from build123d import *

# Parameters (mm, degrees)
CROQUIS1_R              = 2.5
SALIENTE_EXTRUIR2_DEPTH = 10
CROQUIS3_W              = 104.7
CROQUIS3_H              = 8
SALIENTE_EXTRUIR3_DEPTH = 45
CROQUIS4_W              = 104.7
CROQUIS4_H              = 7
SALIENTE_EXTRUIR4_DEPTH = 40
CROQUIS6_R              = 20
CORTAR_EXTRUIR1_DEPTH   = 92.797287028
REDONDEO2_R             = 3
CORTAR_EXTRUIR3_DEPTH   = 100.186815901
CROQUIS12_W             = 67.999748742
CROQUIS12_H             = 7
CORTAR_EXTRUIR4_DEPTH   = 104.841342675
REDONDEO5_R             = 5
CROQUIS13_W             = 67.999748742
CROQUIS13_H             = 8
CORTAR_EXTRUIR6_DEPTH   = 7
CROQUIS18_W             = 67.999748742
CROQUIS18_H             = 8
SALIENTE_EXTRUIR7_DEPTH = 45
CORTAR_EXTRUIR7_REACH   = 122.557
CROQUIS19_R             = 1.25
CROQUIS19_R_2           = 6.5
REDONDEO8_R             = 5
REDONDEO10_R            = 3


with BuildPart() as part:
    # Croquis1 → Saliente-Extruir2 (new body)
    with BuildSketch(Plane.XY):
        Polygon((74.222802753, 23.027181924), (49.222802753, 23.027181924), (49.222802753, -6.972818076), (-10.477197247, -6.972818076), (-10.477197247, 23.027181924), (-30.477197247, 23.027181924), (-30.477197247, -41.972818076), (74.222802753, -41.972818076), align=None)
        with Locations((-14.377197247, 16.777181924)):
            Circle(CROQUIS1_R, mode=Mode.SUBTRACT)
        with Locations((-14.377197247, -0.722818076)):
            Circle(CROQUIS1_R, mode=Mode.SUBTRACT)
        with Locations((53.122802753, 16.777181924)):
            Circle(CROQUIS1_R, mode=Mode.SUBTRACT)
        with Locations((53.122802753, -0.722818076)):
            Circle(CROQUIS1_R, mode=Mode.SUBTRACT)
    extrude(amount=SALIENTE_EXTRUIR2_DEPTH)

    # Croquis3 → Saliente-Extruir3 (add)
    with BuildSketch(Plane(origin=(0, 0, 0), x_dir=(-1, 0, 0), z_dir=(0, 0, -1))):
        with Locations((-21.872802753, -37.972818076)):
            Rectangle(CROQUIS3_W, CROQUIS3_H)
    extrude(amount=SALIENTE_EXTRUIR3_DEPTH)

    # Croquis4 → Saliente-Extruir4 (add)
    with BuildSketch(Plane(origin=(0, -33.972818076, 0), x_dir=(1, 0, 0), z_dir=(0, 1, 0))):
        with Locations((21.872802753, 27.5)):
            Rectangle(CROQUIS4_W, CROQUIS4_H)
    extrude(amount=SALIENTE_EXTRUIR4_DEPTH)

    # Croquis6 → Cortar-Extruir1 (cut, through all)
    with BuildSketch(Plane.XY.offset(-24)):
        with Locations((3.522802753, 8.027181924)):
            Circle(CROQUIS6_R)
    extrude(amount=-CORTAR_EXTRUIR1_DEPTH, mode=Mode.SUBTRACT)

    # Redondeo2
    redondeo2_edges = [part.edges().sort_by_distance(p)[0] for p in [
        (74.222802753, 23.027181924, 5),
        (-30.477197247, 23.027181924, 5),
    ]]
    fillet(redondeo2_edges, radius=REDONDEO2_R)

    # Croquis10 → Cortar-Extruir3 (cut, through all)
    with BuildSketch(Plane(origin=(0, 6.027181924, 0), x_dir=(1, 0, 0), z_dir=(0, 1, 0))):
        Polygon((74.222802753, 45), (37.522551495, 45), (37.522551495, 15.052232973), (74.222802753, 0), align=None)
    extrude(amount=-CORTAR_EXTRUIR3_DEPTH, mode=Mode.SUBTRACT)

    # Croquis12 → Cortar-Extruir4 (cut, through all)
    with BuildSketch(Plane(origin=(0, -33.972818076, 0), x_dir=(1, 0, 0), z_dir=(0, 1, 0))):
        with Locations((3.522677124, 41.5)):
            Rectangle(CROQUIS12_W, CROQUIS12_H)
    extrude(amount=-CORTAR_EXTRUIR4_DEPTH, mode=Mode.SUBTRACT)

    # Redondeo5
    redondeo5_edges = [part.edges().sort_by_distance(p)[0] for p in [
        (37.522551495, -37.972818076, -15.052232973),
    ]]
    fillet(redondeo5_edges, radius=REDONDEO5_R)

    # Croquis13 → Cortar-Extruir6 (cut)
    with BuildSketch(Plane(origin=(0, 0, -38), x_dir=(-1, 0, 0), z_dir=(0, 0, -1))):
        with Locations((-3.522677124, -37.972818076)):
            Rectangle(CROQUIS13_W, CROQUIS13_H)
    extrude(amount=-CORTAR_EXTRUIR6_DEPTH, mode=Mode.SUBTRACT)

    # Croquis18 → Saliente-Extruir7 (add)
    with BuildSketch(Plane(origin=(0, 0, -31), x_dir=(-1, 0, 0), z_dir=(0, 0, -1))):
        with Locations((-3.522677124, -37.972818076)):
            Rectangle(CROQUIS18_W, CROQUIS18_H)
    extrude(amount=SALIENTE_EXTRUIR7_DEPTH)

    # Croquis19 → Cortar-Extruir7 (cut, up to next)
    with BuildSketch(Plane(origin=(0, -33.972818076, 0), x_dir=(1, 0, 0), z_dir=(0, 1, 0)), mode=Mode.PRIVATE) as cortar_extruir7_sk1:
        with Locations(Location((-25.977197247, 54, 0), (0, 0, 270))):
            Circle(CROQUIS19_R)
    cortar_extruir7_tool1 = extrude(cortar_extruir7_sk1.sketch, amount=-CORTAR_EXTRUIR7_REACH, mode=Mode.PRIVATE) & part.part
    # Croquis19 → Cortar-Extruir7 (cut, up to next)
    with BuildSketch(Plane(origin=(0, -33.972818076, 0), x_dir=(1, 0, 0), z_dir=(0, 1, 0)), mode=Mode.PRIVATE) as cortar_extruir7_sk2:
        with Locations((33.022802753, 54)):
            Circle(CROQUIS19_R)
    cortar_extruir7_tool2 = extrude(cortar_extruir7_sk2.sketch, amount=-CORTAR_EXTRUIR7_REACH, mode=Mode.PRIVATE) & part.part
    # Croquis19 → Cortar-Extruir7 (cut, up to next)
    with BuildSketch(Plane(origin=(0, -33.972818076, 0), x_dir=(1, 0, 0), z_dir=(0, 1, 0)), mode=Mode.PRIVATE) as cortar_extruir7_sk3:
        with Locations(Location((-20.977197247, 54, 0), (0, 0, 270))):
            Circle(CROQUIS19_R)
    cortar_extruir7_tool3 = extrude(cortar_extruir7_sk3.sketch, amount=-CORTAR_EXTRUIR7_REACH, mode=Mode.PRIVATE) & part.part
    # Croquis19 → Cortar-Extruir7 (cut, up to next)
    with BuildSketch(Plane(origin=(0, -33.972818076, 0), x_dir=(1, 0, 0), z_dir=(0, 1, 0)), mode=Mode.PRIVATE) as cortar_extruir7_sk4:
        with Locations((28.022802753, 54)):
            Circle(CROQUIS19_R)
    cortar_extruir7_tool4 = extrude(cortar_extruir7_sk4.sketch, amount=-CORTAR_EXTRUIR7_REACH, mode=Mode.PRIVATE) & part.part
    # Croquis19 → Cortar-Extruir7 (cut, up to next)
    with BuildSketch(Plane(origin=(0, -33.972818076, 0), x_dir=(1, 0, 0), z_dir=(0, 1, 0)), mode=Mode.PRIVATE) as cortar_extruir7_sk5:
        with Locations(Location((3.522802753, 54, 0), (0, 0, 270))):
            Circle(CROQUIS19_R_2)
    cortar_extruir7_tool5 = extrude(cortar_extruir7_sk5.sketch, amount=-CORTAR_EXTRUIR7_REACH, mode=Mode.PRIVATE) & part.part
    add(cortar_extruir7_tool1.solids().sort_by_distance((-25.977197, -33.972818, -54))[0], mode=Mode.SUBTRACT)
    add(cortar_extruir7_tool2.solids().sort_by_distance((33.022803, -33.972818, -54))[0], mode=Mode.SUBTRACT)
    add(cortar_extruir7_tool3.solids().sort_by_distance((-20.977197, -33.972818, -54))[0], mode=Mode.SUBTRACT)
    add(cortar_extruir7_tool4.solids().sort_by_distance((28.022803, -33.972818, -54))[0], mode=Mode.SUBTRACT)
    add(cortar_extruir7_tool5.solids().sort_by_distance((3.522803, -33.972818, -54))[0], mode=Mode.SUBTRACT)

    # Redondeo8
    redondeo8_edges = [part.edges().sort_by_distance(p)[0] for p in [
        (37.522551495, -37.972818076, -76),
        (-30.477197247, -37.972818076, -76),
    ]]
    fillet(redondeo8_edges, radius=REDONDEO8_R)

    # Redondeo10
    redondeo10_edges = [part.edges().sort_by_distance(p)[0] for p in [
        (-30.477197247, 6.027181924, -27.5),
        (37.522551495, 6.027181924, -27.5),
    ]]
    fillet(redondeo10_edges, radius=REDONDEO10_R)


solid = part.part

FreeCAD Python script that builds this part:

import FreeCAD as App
import Part
import Sketcher
from FreeCAD import Vector
Q = App.Units.Quantity


def edges_at(feature, points):
    """Names of the edges that pass closest to the given points."""
    edges = feature.Shape.Edges
    near = lambda p: min(range(len(edges)), key=lambda i: edges[i].distToShape(Part.Vertex(*p))[0])
    return sorted({f"Edge{near(p) + 1}" for p in points})

doc = App.newDocument("Part")
body = doc.addObject("PartDesign::Body", "Body")

# Sketch on XY plane
sketch1 = body.newObject("Sketcher::SketchObject", "Sketch")
sketch1.AttachmentSupport = (doc.getObject("XY_Plane"), [""])
sketch1.MapMode = "FlatFace"
sketch1.addGeometry(Part.LineSegment(Vector(74.2, 23, 0), Vector(49.2, 23, 0)), False)
sketch1.addGeometry(Part.LineSegment(Vector(49.2, 23, 0), Vector(49.2, -7, 0)), False)
sketch1.addGeometry(Part.LineSegment(Vector(49.2, -7, 0), Vector(-10.5, -7, 0)), False)
sketch1.addGeometry(Part.LineSegment(Vector(-10.5, -7, 0), Vector(-10.5, 23, 0)), False)
sketch1.addGeometry(Part.LineSegment(Vector(-10.5, 23, 0), Vector(-30.5, 23, 0)), False)
sketch1.addGeometry(Part.LineSegment(Vector(-30.5, 23, 0), Vector(-30.5, -42, 0)), False)
sketch1.addGeometry(Part.LineSegment(Vector(-30.5, -42, 0), Vector(74.2, -42, 0)), False)
sketch1.addGeometry(Part.LineSegment(Vector(74.2, -42, 0), Vector(74.2, 23, 0)), False)
sketch1.addGeometry(Part.Circle(Vector(-14.4, -0.7, 0), Vector(0, 0, 1), 2.5), False)
sketch1.addGeometry(Part.Circle(Vector(53.1, -0.7, 0), Vector(0, 0, 1), 2.5), False)
sketch1.addGeometry(Part.Circle(Vector(-14.4, 16.8, 0), Vector(0, 0, 1), 2.5), False)
sketch1.addGeometry(Part.Circle(Vector(53.1, 16.8, 0), Vector(0, 0, 1), 2.5), False)
sketch1.addConstraint(Sketcher.Constraint("Coincident", 0, 2, 1, 1))
sketch1.addConstraint(Sketcher.Constraint("Coincident", 1, 2, 2, 1))
sketch1.addConstraint(Sketcher.Constraint("Coincident", 2, 2, 3, 1))
sketch1.addConstraint(Sketcher.Constraint("Coincident", 3, 2, 4, 1))
sketch1.addConstraint(Sketcher.Constraint("Coincident", 4, 2, 5, 1))
sketch1.addConstraint(Sketcher.Constraint("Coincident", 5, 2, 6, 1))
sketch1.addConstraint(Sketcher.Constraint("Coincident", 6, 2, 7, 1))
sketch1.addConstraint(Sketcher.Constraint("Coincident", 7, 2, 0, 1))
sketch1.addConstraint(Sketcher.Constraint("Horizontal", 0))
sketch1.addConstraint(Sketcher.Constraint("Vertical", 1))
sketch1.addConstraint(Sketcher.Constraint("Horizontal", 2))
sketch1.addConstraint(Sketcher.Constraint("Vertical", 3))
sketch1.addConstraint(Sketcher.Constraint("Horizontal", 4))
sketch1.addConstraint(Sketcher.Constraint("Vertical", 5))
sketch1.addConstraint(Sketcher.Constraint("Horizontal", 6))
sketch1.addConstraint(Sketcher.Constraint("Vertical", 7))
sketch1.addConstraint(Sketcher.Constraint("Equal", 8, 9))
sketch1.addConstraint(Sketcher.Constraint("Equal", 9, 10))
sketch1.addConstraint(Sketcher.Constraint("Equal", 10, 11))
sketch1.addConstraint(Sketcher.Constraint("Horizontal", 8, 3, 9, 3))
sketch1.addConstraint(Sketcher.Constraint("Horizontal", 10, 3, 11, 3))
sketch1.addConstraint(Sketcher.Constraint("Horizontal", 0, 2, 3, 2))
sketch1.addConstraint(Sketcher.Constraint("Vertical", 8, 3, 10, 3))
sketch1.addConstraint(Sketcher.Constraint("Vertical", 9, 3, 11, 3))
sketch1.addConstraint(Sketcher.Constraint("Diameter", 8, Q("5 mm")))
sketch1.addConstraint(Sketcher.Constraint("DistanceX", 0, 2, 0, 1, Q("25 mm")))
sketch1.addConstraint(Sketcher.Constraint("DistanceX", 4, 2, 4, 1, Q("20 mm")))
sketch1.addConstraint(Sketcher.Constraint("DistanceY", 1, 2, 1, 1, Q("30 mm")))
sketch1.addConstraint(Sketcher.Constraint("DistanceY", 5, 2, 5, 1, Q("65 mm")))
sketch1.addConstraint(Sketcher.Constraint("DistanceX", 2, 2, 2, 1, Q("59.7 mm")))
sketch1.addConstraint(Sketcher.Constraint("DistanceX", 8, 3, 9, 3, Q("67.5 mm")))
sketch1.addConstraint(Sketcher.Constraint("DistanceY", 8, 3, 10, 3, Q("17.5 mm")))
sketch1.addConstraint(Sketcher.Constraint("DistanceX", 0, 2, 11, 3, Q("3.9 mm")))
sketch1.addConstraint(Sketcher.Constraint("DistanceY", 11, 3, 0, 2, Q("6.25 mm")))
sketch1.addConstraint(Sketcher.Constraint("DistanceY", 8, 3, -1, 1, Q("0.722818 mm")))
sketch1.addConstraint(Sketcher.Constraint("DistanceX", 8, 3, -1, 1, Q("14.377197 mm")))
pad1 = body.newObject("PartDesign::Pad", "Pad")
pad1.Profile = sketch1
pad1.Length = 10

# Sketch on XY plane
sketch2 = body.newObject("Sketcher::SketchObject", "Sketch001")
sketch2.AttachmentSupport = (doc.getObject("XY_Plane"), [""])
sketch2.MapMode = "FlatFace"
sketch2.addGeometry(Part.LineSegment(Vector(74, -34, 0), Vector(74, -42, 0)), False)
sketch2.addGeometry(Part.LineSegment(Vector(74, -42, 0), Vector(-30, -42, 0)), False)
sketch2.addGeometry(Part.LineSegment(Vector(-30, -42, 0), Vector(-30, -34, 0)), False)
sketch2.addGeometry(Part.LineSegment(Vector(-30, -34, 0), Vector(74, -34, 0)), False)
sketch2.addConstraint(Sketcher.Constraint("Coincident", 0, 2, 1, 1))
sketch2.addConstraint(Sketcher.Constraint("Coincident", 1, 2, 2, 1))
sketch2.addConstraint(Sketcher.Constraint("Coincident", 2, 2, 3, 1))
sketch2.addConstraint(Sketcher.Constraint("Coincident", 3, 2, 0, 1))
sketch2.addConstraint(Sketcher.Constraint("Vertical", 0))
sketch2.addConstraint(Sketcher.Constraint("Horizontal", 1))
sketch2.addConstraint(Sketcher.Constraint("Vertical", 2))
sketch2.addConstraint(Sketcher.Constraint("Horizontal", 3))
sketch2.addConstraint(Sketcher.Constraint("DistanceY", 0, 2, 0, 1, Q("8 mm")))
sketch2.addConstraint(Sketcher.Constraint("DistanceX", 1, 2, 1, 1, Q("104.7 mm")))
sketch2.addConstraint(Sketcher.Constraint("DistanceY", 0, 2, -1, 1, Q("41.972818 mm")))
sketch2.addConstraint(Sketcher.Constraint("DistanceX", -1, 1, 0, 2, Q("74.222803 mm")))
pad2 = body.newObject("PartDesign::Pad", "Pad001")
pad2.Profile = sketch2
pad2.Length = 45
pad2.Reversed = True

# Sketch on XZ plane
sketch3 = body.newObject("Sketcher::SketchObject", "Sketch002")
sketch3.AttachmentSupport = (doc.getObject("XZ_Plane"), [""])
sketch3.MapMode = "FlatFace"
sketch3.AttachmentOffset = App.Placement(Vector(0, 0, 33.972818), App.Rotation())
sketch3.addGeometry(Part.LineSegment(Vector(-30, -31, 0), Vector(-30, -24, 0)), False)
sketch3.addGeometry(Part.LineSegment(Vector(-30, -24, 0), Vector(74, -24, 0)), False)
sketch3.addGeometry(Part.LineSegment(Vector(74, -24, 0), Vector(74, -31, 0)), False)
sketch3.addGeometry(Part.LineSegment(Vector(74, -31, 0), Vector(-30, -31, 0)), False)
sketch3.addConstraint(Sketcher.Constraint("Coincident", 0, 2, 1, 1))
sketch3.addConstraint(Sketcher.Constraint("Coincident", 1, 2, 2, 1))
sketch3.addConstraint(Sketcher.Constraint("Coincident", 2, 2, 3, 1))
sketch3.addConstraint(Sketcher.Constraint("Coincident", 3, 2, 0, 1))
sketch3.addConstraint(Sketcher.Constraint("Vertical", 0))
sketch3.addConstraint(Sketcher.Constraint("Horizontal", 1))
sketch3.addConstraint(Sketcher.Constraint("Vertical", 2))
sketch3.addConstraint(Sketcher.Constraint("Horizontal", 3))
sketch3.addConstraint(Sketcher.Constraint("DistanceY", 0, 1, 0, 2, Q("7 mm")))
sketch3.addConstraint(Sketcher.Constraint("DistanceX", 1, 1, 1, 2, Q("104.7 mm")))
sketch3.addConstraint(Sketcher.Constraint("DistanceY", 0, 2, -1, 1, Q("24 mm")))
sketch3.addConstraint(Sketcher.Constraint("DistanceX", 0, 2, -1, 1, Q("30.477197 mm")))
pad3 = body.newObject("PartDesign::Pad", "Pad002")
pad3.Profile = sketch3
pad3.Length = 40
pad3.Reversed = True

# Sketch on XY plane
sketch4 = body.newObject("Sketcher::SketchObject", "Sketch003")
sketch4.AttachmentSupport = (doc.getObject("XY_Plane"), [""])
sketch4.MapMode = "FlatFace"
sketch4.AttachmentOffset = App.Placement(Vector(0, 0, -24), App.Rotation())
sketch4.addGeometry(Part.Circle(Vector(4, 8, 0), Vector(0, 0, 1), 20), False)
sketch4.addConstraint(Sketcher.Constraint("Diameter", 0, Q("40 mm")))
sketch4.addConstraint(Sketcher.Constraint("DistanceY", -1, 1, 0, 3, Q("8.027182 mm")))
sketch4.addConstraint(Sketcher.Constraint("DistanceX", -1, 1, 0, 3, Q("3.522803 mm")))
pocket1 = body.newObject("PartDesign::Pocket", "Pocket")
pocket1.Profile = sketch4
pocket1.Type = "ThroughAll"
doc.recompute()

fillet = body.newObject("PartDesign::Fillet", "Fillet")
fillet.Base = (pocket1, edges_at(pocket1, [(74.223, 23.027, 5), (-30.477, 23.027, 5)]))
fillet.Radius = 3

# Sketch on XZ plane
sketch5 = body.newObject("Sketcher::SketchObject", "Sketch004")
sketch5.AttachmentSupport = (doc.getObject("XZ_Plane"), [""])
sketch5.MapMode = "FlatFace"
sketch5.AttachmentOffset = App.Placement(Vector(0, 0, -6.027182), App.Rotation())
sketch5.addGeometry(Part.LineSegment(Vector(74, -45, 0), Vector(38, -45, 0)), False)
sketch5.addGeometry(Part.LineSegment(Vector(38, -45, 0), Vector(38, -15, 0)), False)
sketch5.addGeometry(Part.LineSegment(Vector(38, -15, 0), Vector(74, 0, 0)), False)
sketch5.addGeometry(Part.LineSegment(Vector(74, 0, 0), Vector(74, -45, 0)), False)
sketch5.addConstraint(Sketcher.Constraint("Coincident", 0, 2, 1, 1))
sketch5.addConstraint(Sketcher.Constraint("Coincident", 1, 2, 2, 1))
sketch5.addConstraint(Sketcher.Constraint("Coincident", 2, 2, 3, 1))
sketch5.addConstraint(Sketcher.Constraint("Coincident", 3, 2, 0, 1))
sketch5.addConstraint(Sketcher.Constraint("Horizontal", 0))
sketch5.addConstraint(Sketcher.Constraint("Vertical", 1))
sketch5.addConstraint(Sketcher.Constraint("Vertical", 3))
sketch5.addConstraint(Sketcher.Constraint("PointOnObject", 2, 2, -1))
sketch5.addConstraint(Sketcher.Constraint("DistanceY", 3, 2, 3, 1, Q("45 mm")))
sketch5.addConstraint(Sketcher.Constraint("DistanceX", 0, 2, 0, 1, Q("36.700251 mm")))
sketch5.addConstraint(Sketcher.Constraint("Distance", 2, Q("39.667092 mm")))
sketch5.addConstraint(Sketcher.Constraint("DistanceX", -1, 1, 0, 2, Q("37.522551 mm")))
pocket2 = body.newObject("PartDesign::Pocket", "Pocket001")
pocket2.Profile = sketch5
pocket2.Type = "ThroughAll"
pocket2.Reversed = True

# Sketch on XZ plane
sketch6 = body.newObject("Sketcher::SketchObject", "Sketch005")
sketch6.AttachmentSupport = (doc.getObject("XZ_Plane"), [""])
sketch6.MapMode = "FlatFace"
sketch6.AttachmentOffset = App.Placement(Vector(0, 0, 33.972818), App.Rotation())
sketch6.addGeometry(Part.LineSegment(Vector(-30, -45, 0), Vector(-30, -38, 0)), False)
sketch6.addGeometry(Part.LineSegment(Vector(-30, -38, 0), Vector(38, -38, 0)), False)
sketch6.addGeometry(Part.LineSegment(Vector(38, -38, 0), Vector(38, -45, 0)), False)
sketch6.addGeometry(Part.LineSegment(Vector(38, -45, 0), Vector(-30, -45, 0)), False)
sketch6.addConstraint(Sketcher.Constraint("Coincident", 0, 2, 1, 1))
sketch6.addConstraint(Sketcher.Constraint("Coincident", 1, 2, 2, 1))
sketch6.addConstraint(Sketcher.Constraint("Coincident", 2, 2, 3, 1))
sketch6.addConstraint(Sketcher.Constraint("Coincident", 3, 2, 0, 1))
sketch6.addConstraint(Sketcher.Constraint("Vertical", 0))
sketch6.addConstraint(Sketcher.Constraint("Horizontal", 1))
sketch6.addConstraint(Sketcher.Constraint("Vertical", 2))
sketch6.addConstraint(Sketcher.Constraint("Horizontal", 3))
sketch6.addConstraint(Sketcher.Constraint("DistanceY", 0, 1, 0, 2, Q("7 mm")))
sketch6.addConstraint(Sketcher.Constraint("DistanceY", 0, 2, -1, 1, Q("38 mm")))
sketch6.addConstraint(Sketcher.Constraint("DistanceX", 1, 1, 1, 2, Q("67.999749 mm")))
sketch6.addConstraint(Sketcher.Constraint("DistanceX", -1, 1, 1, 2, Q("37.522551 mm")))
pocket3 = body.newObject("PartDesign::Pocket", "Pocket002")
pocket3.Profile = sketch6
pocket3.Type = "ThroughAll"
pocket3.Reversed = True
doc.recompute()

fillet2 = body.newObject("PartDesign::Fillet", "Fillet001")
fillet2.Base = (pocket3, edges_at(pocket3, [(37.523, -37.973, -15.052)]))
fillet2.Radius = 5

# Sketch on XY plane
sketch7 = body.newObject("Sketcher::SketchObject", "Sketch006")
sketch7.AttachmentSupport = (doc.getObject("XY_Plane"), [""])
sketch7.MapMode = "FlatFace"
sketch7.AttachmentOffset = App.Placement(Vector(0, 0, -38), App.Rotation())
sketch7.addGeometry(Part.LineSegment(Vector(38, -34, 0), Vector(38, -42, 0)), False)
sketch7.addGeometry(Part.LineSegment(Vector(38, -42, 0), Vector(-30, -42, 0)), False)
sketch7.addGeometry(Part.LineSegment(Vector(-30, -42, 0), Vector(-30, -34, 0)), False)
sketch7.addGeometry(Part.LineSegment(Vector(-30, -34, 0), Vector(38, -34, 0)), False)
sketch7.addConstraint(Sketcher.Constraint("Coincident", 0, 2, 1, 1))
sketch7.addConstraint(Sketcher.Constraint("Coincident", 1, 2, 2, 1))
sketch7.addConstraint(Sketcher.Constraint("Coincident", 2, 2, 3, 1))
sketch7.addConstraint(Sketcher.Constraint("Coincident", 3, 2, 0, 1))
sketch7.addConstraint(Sketcher.Constraint("Vertical", 0))
sketch7.addConstraint(Sketcher.Constraint("Horizontal", 1))
sketch7.addConstraint(Sketcher.Constraint("Vertical", 2))
sketch7.addConstraint(Sketcher.Constraint("Horizontal", 3))
sketch7.addConstraint(Sketcher.Constraint("DistanceY", 0, 2, 0, 1, Q("8 mm")))
sketch7.addConstraint(Sketcher.Constraint("DistanceX", 1, 2, 1, 1, Q("67.999749 mm")))
sketch7.addConstraint(Sketcher.Constraint("DistanceX", -1, 1, 0, 2, Q("37.522551 mm")))
sketch7.addConstraint(Sketcher.Constraint("DistanceY", 0, 2, -1, 1, Q("41.972818 mm")))
pocket4 = body.newObject("PartDesign::Pocket", "Pocket003")
pocket4.Profile = sketch7
pocket4.Length = 7
pocket4.Reversed = True

# Sketch on XY plane
sketch8 = body.newObject("Sketcher::SketchObject", "Sketch007")
sketch8.AttachmentSupport = (doc.getObject("XY_Plane"), [""])
sketch8.MapMode = "FlatFace"
sketch8.AttachmentOffset = App.Placement(Vector(0, 0, -31), App.Rotation())
sketch8.addGeometry(Part.LineSegment(Vector(38, -34, 0), Vector(38, -42, 0)), False)
sketch8.addGeometry(Part.LineSegment(Vector(38, -42, 0), Vector(-30, -42, 0)), False)
sketch8.addGeometry(Part.LineSegment(Vector(-30, -42, 0), Vector(-30, -34, 0)), False)
sketch8.addGeometry(Part.LineSegment(Vector(-30, -34, 0), Vector(38, -34, 0)), False)
sketch8.addConstraint(Sketcher.Constraint("Coincident", 0, 2, 1, 1))
sketch8.addConstraint(Sketcher.Constraint("Coincident", 1, 2, 2, 1))
sketch8.addConstraint(Sketcher.Constraint("Coincident", 2, 2, 3, 1))
sketch8.addConstraint(Sketcher.Constraint("Coincident", 3, 2, 0, 1))
sketch8.addConstraint(Sketcher.Constraint("Vertical", 0))
sketch8.addConstraint(Sketcher.Constraint("Horizontal", 1))
sketch8.addConstraint(Sketcher.Constraint("Vertical", 2))
sketch8.addConstraint(Sketcher.Constraint("Horizontal", 3))
sketch8.addConstraint(Sketcher.Constraint("DistanceY", 0, 2, 0, 1, Q("8 mm")))
sketch8.addConstraint(Sketcher.Constraint("DistanceX", 1, 2, 1, 1, Q("67.999749 mm")))
sketch8.addConstraint(Sketcher.Constraint("DistanceX", -1, 1, 0, 2, Q("37.522551 mm")))
sketch8.addConstraint(Sketcher.Constraint("DistanceY", 0, 2, -1, 1, Q("41.972818 mm")))
pad4 = body.newObject("PartDesign::Pad", "Pad003")
pad4.Profile = sketch8
pad4.Length = 45
pad4.Reversed = True

# Sketch on XZ plane
sketch9 = body.newObject("Sketcher::SketchObject", "Sketch008")
sketch9.AttachmentSupport = (doc.getObject("XZ_Plane"), [""])
sketch9.MapMode = "FlatFace"
sketch9.AttachmentOffset = App.Placement(Vector(0, 0, 33.972818), App.Rotation())
sketch9.addGeometry(Part.Circle(Vector(-26, -54, 0), Vector(0, 0, 1), 1.2), False)
sketch9.addConstraint(Sketcher.Constraint("Diameter", 0, Q("2.5 mm")))
sketch9.addConstraint(Sketcher.Constraint("DistanceY", 0, 3, -1, 1, Q("54 mm")))
sketch9.addConstraint(Sketcher.Constraint("DistanceX", 0, 3, -1, 1, Q("25.977197 mm")))
pocket5 = body.newObject("PartDesign::Pocket", "Pocket004")
pocket5.Profile = sketch9
pocket5.Type = "UpToFirst"
pocket5.Reversed = True

# Sketch on XZ plane
sketch10 = body.newObject("Sketcher::SketchObject", "Sketch009")
sketch10.AttachmentSupport = (doc.getObject("XZ_Plane"), [""])
sketch10.MapMode = "FlatFace"
sketch10.AttachmentOffset = App.Placement(Vector(0, 0, 33.972818), App.Rotation())
sketch10.addGeometry(Part.Circle(Vector(33, -54, 0), Vector(0, 0, 1), 1.2), False)
sketch10.addConstraint(Sketcher.Constraint("Diameter", 0, Q("2.5 mm")))
sketch10.addConstraint(Sketcher.Constraint("DistanceY", 0, 3, -1, 1, Q("54 mm")))
sketch10.addConstraint(Sketcher.Constraint("DistanceX", -1, 1, 0, 3, Q("33.022803 mm")))
pocket6 = body.newObject("PartDesign::Pocket", "Pocket005")
pocket6.Profile = sketch10
pocket6.Type = "UpToFirst"
pocket6.Reversed = True

# Sketch on XZ plane
sketch11 = body.newObject("Sketcher::SketchObject", "Sketch010")
sketch11.AttachmentSupport = (doc.getObject("XZ_Plane"), [""])
sketch11.MapMode = "FlatFace"
sketch11.AttachmentOffset = App.Placement(Vector(0, 0, 33.972818), App.Rotation())
sketch11.addGeometry(Part.Circle(Vector(-21, -54, 0), Vector(0, 0, 1), 1.2), False)
sketch11.addConstraint(Sketcher.Constraint("Diameter", 0, Q("2.5 mm")))
sketch11.addConstraint(Sketcher.Constraint("DistanceY", 0, 3, -1, 1, Q("54 mm")))
sketch11.addConstraint(Sketcher.Constraint("DistanceX", 0, 3, -1, 1, Q("20.977197 mm")))
pocket7 = body.newObject("PartDesign::Pocket", "Pocket006")
pocket7.Profile = sketch11
pocket7.Type = "UpToFirst"
pocket7.Reversed = True

# Sketch on XZ plane
sketch12 = body.newObject("Sketcher::SketchObject", "Sketch011")
sketch12.AttachmentSupport = (doc.getObject("XZ_Plane"), [""])
sketch12.MapMode = "FlatFace"
sketch12.AttachmentOffset = App.Placement(Vector(0, 0, 33.972818), App.Rotation())
sketch12.addGeometry(Part.Circle(Vector(28, -54, 0), Vector(0, 0, 1), 1.2), False)
sketch12.addConstraint(Sketcher.Constraint("Diameter", 0, Q("2.5 mm")))
sketch12.addConstraint(Sketcher.Constraint("DistanceY", 0, 3, -1, 1, Q("54 mm")))
sketch12.addConstraint(Sketcher.Constraint("DistanceX", -1, 1, 0, 3, Q("28.022803 mm")))
pocket8 = body.newObject("PartDesign::Pocket", "Pocket007")
pocket8.Profile = sketch12
pocket8.Type = "UpToFirst"
pocket8.Reversed = True

# Sketch on XZ plane
sketch13 = body.newObject("Sketcher::SketchObject", "Sketch012")
sketch13.AttachmentSupport = (doc.getObject("XZ_Plane"), [""])
sketch13.MapMode = "FlatFace"
sketch13.AttachmentOffset = App.Placement(Vector(0, 0, 33.972818), App.Rotation())
sketch13.addGeometry(Part.Circle(Vector(4, -54, 0), Vector(0, 0, 1), 6), False)
sketch13.addConstraint(Sketcher.Constraint("Diameter", 0, Q("13 mm")))
sketch13.addConstraint(Sketcher.Constraint("DistanceY", 0, 3, -1, 1, Q("54 mm")))
sketch13.addConstraint(Sketcher.Constraint("DistanceX", -1, 1, 0, 3, Q("3.522803 mm")))
pocket9 = body.newObject("PartDesign::Pocket", "Pocket008")
pocket9.Profile = sketch13
pocket9.Type = "UpToFirst"
pocket9.Reversed = True
doc.recompute()

fillet3 = body.newObject("PartDesign::Fillet", "Fillet002")
fillet3.Base = (pocket9, edges_at(pocket9, [(37.523, -37.973, -76), (-30.477, -37.973, -76)]))
fillet3.Radius = 5
doc.recompute()

fillet4 = body.newObject("PartDesign::Fillet", "Fillet003")
fillet4.Base = (fillet3, edges_at(fillet3, [(-30.477, 6.027, -27.5), (37.523, 6.027, -27.5)]))
fillet4.Radius = 3

doc.recompute()
